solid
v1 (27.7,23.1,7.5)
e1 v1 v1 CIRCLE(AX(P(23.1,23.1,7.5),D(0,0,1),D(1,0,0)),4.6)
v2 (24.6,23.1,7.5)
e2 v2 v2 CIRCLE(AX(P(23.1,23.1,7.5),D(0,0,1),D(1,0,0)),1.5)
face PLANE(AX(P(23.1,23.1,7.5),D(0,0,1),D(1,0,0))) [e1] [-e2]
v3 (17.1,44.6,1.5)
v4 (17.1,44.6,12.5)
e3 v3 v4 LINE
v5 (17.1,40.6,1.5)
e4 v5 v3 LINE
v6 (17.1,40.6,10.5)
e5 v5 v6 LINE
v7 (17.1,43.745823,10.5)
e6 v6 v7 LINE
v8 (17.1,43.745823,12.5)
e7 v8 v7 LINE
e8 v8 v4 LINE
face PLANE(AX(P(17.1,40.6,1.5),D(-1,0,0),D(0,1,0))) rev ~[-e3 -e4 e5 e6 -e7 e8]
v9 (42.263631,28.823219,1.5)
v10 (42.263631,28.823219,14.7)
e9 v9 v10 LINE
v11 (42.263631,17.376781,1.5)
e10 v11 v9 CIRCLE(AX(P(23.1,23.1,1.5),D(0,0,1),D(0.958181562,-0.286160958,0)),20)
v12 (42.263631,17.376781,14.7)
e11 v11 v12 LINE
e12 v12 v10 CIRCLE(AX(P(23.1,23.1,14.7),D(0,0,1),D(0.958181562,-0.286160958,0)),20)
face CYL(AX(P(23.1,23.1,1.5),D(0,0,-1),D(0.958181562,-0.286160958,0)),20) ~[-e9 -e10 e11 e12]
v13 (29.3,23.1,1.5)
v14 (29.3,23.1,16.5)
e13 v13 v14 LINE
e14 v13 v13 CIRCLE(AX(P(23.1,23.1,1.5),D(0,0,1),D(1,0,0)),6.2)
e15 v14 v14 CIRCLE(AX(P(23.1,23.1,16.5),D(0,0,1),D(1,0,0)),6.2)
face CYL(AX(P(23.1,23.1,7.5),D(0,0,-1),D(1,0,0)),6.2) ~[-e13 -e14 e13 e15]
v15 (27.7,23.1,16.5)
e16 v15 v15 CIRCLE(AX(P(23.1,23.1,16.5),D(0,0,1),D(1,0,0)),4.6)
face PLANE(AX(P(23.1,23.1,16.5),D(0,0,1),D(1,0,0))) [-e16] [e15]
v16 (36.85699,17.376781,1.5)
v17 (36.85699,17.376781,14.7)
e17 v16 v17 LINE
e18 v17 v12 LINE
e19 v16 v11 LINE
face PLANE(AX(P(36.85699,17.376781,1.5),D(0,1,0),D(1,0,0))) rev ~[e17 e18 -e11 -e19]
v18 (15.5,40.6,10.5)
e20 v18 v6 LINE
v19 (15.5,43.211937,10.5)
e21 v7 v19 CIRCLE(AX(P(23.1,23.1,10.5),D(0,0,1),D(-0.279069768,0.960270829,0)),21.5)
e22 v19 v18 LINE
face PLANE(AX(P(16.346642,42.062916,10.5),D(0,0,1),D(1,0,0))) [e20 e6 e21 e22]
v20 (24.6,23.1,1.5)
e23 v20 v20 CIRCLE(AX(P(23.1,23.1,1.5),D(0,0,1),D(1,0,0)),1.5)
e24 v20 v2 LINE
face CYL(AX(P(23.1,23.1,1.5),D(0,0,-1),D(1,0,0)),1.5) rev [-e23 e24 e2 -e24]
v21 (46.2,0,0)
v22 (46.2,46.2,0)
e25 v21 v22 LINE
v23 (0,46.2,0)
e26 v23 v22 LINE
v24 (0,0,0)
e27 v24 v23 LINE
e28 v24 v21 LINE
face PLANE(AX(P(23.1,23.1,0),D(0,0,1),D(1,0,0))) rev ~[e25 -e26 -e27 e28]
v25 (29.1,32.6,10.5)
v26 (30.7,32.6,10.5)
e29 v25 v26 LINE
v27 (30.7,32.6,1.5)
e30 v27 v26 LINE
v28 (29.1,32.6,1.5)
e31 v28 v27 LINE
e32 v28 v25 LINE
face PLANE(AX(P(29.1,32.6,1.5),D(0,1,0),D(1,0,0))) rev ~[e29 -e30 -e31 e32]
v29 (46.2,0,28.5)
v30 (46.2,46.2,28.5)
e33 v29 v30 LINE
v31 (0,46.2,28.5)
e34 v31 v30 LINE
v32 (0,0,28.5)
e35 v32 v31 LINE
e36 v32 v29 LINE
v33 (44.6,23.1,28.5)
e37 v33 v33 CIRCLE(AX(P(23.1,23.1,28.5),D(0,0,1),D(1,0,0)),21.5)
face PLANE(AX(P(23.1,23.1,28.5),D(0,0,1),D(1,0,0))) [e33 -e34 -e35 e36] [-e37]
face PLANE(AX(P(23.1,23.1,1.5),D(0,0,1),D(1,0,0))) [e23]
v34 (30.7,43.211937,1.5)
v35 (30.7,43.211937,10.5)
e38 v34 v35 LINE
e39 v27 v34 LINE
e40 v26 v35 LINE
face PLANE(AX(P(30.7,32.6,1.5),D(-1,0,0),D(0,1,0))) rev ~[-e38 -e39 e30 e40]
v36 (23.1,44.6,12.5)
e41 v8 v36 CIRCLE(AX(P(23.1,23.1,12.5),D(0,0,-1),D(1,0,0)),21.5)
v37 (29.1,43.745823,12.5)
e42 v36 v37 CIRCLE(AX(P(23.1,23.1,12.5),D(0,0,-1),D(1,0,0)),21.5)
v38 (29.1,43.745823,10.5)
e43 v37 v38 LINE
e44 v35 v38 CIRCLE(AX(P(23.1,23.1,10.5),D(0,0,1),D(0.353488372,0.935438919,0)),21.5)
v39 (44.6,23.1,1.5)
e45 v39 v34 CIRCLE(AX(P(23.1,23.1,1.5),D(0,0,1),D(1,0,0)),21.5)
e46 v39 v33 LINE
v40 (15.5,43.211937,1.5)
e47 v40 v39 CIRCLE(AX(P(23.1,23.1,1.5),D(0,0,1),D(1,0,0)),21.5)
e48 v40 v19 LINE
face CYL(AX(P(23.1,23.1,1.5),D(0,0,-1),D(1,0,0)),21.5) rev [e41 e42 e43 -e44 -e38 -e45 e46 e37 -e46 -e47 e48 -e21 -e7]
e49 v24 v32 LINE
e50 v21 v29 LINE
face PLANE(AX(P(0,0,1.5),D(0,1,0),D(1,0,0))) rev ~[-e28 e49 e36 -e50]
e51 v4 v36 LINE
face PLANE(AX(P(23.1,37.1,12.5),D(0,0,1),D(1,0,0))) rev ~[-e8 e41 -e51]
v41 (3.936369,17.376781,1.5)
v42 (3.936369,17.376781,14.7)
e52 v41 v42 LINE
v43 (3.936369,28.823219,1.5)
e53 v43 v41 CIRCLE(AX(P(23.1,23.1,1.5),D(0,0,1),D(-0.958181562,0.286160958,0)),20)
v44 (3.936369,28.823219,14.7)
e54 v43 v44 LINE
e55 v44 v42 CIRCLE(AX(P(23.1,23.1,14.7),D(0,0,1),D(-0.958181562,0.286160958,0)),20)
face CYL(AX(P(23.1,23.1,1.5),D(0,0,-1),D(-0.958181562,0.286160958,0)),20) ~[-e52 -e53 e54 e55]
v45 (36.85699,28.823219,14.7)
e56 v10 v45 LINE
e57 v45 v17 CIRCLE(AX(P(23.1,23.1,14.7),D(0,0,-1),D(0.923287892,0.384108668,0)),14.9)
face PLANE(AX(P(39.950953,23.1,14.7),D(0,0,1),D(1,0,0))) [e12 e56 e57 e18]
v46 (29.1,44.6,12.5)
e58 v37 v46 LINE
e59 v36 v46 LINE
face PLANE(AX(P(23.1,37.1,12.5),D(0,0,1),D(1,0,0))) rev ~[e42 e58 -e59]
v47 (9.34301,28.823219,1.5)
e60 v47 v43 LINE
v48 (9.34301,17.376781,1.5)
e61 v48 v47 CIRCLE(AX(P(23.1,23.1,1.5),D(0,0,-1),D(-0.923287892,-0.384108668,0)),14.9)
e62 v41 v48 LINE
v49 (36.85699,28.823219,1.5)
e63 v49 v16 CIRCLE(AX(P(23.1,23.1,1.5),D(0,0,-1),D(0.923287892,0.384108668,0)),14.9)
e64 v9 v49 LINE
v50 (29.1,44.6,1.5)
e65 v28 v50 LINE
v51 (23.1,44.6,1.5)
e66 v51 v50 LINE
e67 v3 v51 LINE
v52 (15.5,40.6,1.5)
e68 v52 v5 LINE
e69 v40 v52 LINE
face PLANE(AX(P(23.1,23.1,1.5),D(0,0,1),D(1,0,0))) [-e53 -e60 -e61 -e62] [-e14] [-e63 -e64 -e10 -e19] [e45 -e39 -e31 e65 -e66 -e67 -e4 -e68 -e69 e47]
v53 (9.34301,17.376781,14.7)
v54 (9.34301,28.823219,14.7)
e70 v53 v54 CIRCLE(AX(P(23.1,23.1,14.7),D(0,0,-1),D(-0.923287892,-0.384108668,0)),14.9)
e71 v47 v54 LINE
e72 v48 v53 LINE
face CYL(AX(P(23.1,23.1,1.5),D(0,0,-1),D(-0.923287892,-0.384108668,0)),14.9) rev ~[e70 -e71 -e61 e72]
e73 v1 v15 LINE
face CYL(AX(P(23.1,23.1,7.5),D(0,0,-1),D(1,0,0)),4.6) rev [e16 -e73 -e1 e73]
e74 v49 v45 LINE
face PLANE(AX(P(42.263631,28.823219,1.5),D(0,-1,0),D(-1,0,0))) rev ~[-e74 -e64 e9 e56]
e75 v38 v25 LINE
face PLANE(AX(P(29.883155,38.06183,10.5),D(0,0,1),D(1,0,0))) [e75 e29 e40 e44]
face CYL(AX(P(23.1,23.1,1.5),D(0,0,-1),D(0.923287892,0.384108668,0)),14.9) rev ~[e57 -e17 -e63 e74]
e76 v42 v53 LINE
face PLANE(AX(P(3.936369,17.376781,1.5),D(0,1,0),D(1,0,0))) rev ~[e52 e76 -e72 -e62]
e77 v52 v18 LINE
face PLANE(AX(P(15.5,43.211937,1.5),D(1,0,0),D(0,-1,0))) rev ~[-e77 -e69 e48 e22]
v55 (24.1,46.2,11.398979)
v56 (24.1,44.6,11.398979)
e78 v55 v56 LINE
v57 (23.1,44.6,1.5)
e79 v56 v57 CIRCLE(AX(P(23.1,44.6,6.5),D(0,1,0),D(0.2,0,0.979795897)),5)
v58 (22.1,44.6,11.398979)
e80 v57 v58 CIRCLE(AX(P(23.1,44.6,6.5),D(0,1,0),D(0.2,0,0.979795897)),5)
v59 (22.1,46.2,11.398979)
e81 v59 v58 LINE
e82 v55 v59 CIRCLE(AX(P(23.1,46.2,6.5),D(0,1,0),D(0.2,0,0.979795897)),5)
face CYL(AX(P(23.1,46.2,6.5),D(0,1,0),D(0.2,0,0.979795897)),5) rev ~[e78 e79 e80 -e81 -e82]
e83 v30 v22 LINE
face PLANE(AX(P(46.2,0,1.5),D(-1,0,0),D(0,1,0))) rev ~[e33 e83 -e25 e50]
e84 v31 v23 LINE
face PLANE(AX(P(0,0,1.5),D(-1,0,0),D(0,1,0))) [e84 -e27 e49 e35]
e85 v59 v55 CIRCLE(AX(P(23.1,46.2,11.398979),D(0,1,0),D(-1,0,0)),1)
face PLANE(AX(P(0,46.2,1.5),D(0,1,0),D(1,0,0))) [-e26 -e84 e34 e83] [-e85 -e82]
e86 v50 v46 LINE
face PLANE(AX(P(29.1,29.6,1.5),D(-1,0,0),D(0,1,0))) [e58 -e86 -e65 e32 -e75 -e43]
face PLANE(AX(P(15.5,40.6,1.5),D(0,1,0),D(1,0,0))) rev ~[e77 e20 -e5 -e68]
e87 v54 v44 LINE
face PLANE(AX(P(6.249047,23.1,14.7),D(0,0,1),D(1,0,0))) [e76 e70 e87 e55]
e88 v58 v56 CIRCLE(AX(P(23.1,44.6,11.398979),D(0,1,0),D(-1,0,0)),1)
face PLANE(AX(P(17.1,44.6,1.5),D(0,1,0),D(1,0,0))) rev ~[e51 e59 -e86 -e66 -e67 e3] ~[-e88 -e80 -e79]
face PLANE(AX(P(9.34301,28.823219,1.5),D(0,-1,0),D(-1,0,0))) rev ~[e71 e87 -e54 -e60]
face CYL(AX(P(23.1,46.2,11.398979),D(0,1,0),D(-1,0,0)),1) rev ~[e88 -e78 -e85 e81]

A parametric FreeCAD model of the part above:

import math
import FreeCAD as App
import Part
import Sketcher
Q = App.Units.Quantity


def add_polygon(sketch, points):
    """Adds a closed chain of lines whose ends are joined by coincident constraints."""
    first, n = sketch.GeometryCount, len(points)
    for a, b in zip(points, points[1:] + points[:1]):
        sketch.addGeometry(Part.LineSegment(App.Vector(*a, 0), App.Vector(*b, 0)), False)
    for i in range(n):
        sketch.addConstraint(Sketcher.Constraint("Coincident", first + i, 2, first + (i + 1) % n, 1))

doc = App.newDocument("Part")
body = doc.addObject("PartDesign::Body", "Body")

sketch1 = body.newObject("Sketcher::SketchObject", "Sketch")
sketch1.AttachmentSupport = (doc.getObject("XY_Plane"), [""])
sketch1.MapMode = "FlatFace"
add_polygon(sketch1, [(0, 46.2), (0, 0), (46.2, 0), (46.2, 46.2)])
sketch1.addConstraint([
    Sketcher.Constraint("Vertical", 0),
    Sketcher.Constraint("Horizontal", 1),
    Sketcher.Constraint("Vertical", 2),
    Sketcher.Constraint("Horizontal", 3),
    Sketcher.Constraint("Coincident", 0, 2, -1, 1),
    Sketcher.Constraint("Equal", 3, 0),
    Sketcher.Constraint("DistanceX", 1, 1, 1, 2, Q("46.2 mm")),
])
pad1 = body.newObject("PartDesign::Pad", "Pad")
pad1.Profile = sketch1
pad1.Length = 1.5

sketch2 = body.newObject("Sketcher::SketchObject", "Sketch001")
sketch2.AttachmentSupport = (doc.getObject("XY_Plane"), [""])
sketch2.MapMode = "FlatFace"
sketch2.AttachmentOffset = App.Placement(App.Vector(0, 0, 1.5), App.Rotation())
add_polygon(sketch2, [(0, 46.2), (0, 0), (46.2, 0), (46.2, 46.2)])
sketch2.addGeometry(Part.Circle(App.Vector(23.1, 23.1, 0), App.Vector(0, 0, 1), 21.5), False)
sketch2.addConstraint([
    Sketcher.Constraint("Vertical", 0),
    Sketcher.Constraint("Horizontal", 1),
    Sketcher.Constraint("Vertical", 2),
    Sketcher.Constraint("Horizontal", 3),
    Sketcher.Constraint("Coincident", 0, 2, -1, 1),
    Sketcher.Constraint("Equal", 3, 0),
    Sketcher.Constraint("Diameter", 4, Q("43 mm")),
    Sketcher.Constraint("DistanceX", 1, 1, 1, 2, Q("46.2 mm")),
    Sketcher.Constraint("DistanceX", -1, 1, 4, 3, Q("23.1 mm")),
    Sketcher.Constraint("DistanceY", -1, 1, 4, 3, Q("23.1 mm")),
])
pad2 = body.newObject("PartDesign::Pad", "Pad001")
pad2.Profile = sketch2
pad2.Length = 27

sketch3 = body.newObject("Sketcher::SketchObject", "Sketch002")
sketch3.AttachmentSupport = (doc.getObject("XY_Plane"), [""])
sketch3.MapMode = "FlatFace"
sketch3.AttachmentOffset = App.Placement(App.Vector(0, 0, 1.5), App.Rotation())
sketch3.addGeometry([
    Part.Circle(App.Vector(23.1, 23.1, 0), App.Vector(0, 0, 1), 6.2),
    Part.Circle(App.Vector(23.1, 23.1, 0), App.Vector(0, 0, 1), 1.5),
], False)
sketch3.addConstraint([
    Sketcher.Constraint("Coincident", 1, 3, 0, 3),
    Sketcher.Constraint("Diameter", 1, Q("3 mm")),
    Sketcher.Constraint("Diameter", 0, Q("12.4 mm")),
    Sketcher.Constraint("DistanceX", -1, 1, 0, 3, Q("23.1 mm")),
    Sketcher.Constraint("DistanceY", -1, 1, 0, 3, Q("23.1 mm")),
])
pad3 = body.newObject("PartDesign::Pad", "Pad002")
pad3.Profile = sketch3
pad3.Length = 6

sketch4 = body.newObject("Sketcher::SketchObject", "Sketch003")
sketch4.AttachmentSupport = (doc.getObject("XY_Plane"), [""])
sketch4.MapMode = "FlatFace"
sketch4.AttachmentOffset = App.Placement(App.Vector(0, 0, 7.5), App.Rotation())
sketch4.addGeometry([
    Part.Circle(App.Vector(23.1, 23.1, 0), App.Vector(0, 0, 1), 6.2),
    Part.Circle(App.Vector(23.1, 23.1, 0), App.Vector(0, 0, 1), 4.6),
], False)
sketch4.addConstraint([
    Sketcher.Constraint("Coincident", 1, 3, 0, 3),
    Sketcher.Constraint("Diameter", 0, Q("12.4 mm")),
    Sketcher.Constraint("Diameter", 1, Q("9.2 mm")),
    Sketcher.Constraint("DistanceX", -1, 1, 0, 3, Q("23.1 mm")),
    Sketcher.Constraint("DistanceY", -1, 1, 0, 3, Q("23.1 mm")),
])
pad4 = body.newObject("PartDesign::Pad", "Pad003")
pad4.Profile = sketch4
pad4.Length = 9

sketch5 = body.newObject("Sketcher::SketchObject", "Sketch004")
sketch5.AttachmentSupport = (doc.getObject("XY_Plane"), [""])
sketch5.MapMode = "FlatFace"
sketch5.AttachmentOffset = App.Placement(App.Vector(0, 0, 1.5), App.Rotation())
sketch5.addGeometry([
    Part.ArcOfCircle(Part.Circle(App.Vector(23.1, 23.1, 0), App.Vector(0, 0, 1), 20), math.radians(163.371743), math.radians(196.628257)),
    Part.LineSegment(App.Vector(3.936369, 17.376781, 0), App.Vector(9.34301, 17.376781, 0)),
    Part.ArcOfCircle(Part.Circle(App.Vector(23.1, 23.1, 0), App.Vector(0, 0, 1), 14.9), math.radians(157.411584), math.radians(202.588416)),
    Part.LineSegment(App.Vector(9.34301, 28.823219, 0), App.Vector(3.936369, 28.823219, 0)),
    Part.ArcOfCircle(Part.Circle(App.Vector(23.1, 23.1, 0), App.Vector(0, 0, 1), 20), math.radians(-16.628257), math.radians(16.628257)),
    Part.LineSegment(App.Vector(42.263631, 28.823219, 0), App.Vector(36.85699, 28.823219, 0)),
    Part.ArcOfCircle(Part.Circle(App.Vector(23.1, 23.1, 0), App.Vector(0, 0, 1), 14.9), math.radians(-22.588416), math.radians(22.588416)),
    Part.LineSegment(App.Vector(36.85699, 17.376781, 0), App.Vector(42.263631, 17.376781, 0)),
], False)
sketch5.addConstraint([
    Sketcher.Constraint("Coincident", 0, 2, 1, 1),
    Sketcher.Constraint("Coincident", 1, 2, 2, 2),
    Sketcher.Constraint("Coincident", 2, 1, 3, 1),
    Sketcher.Constraint("Coincident", 3, 2, 0, 1),
    Sketcher.Constraint("Coincident", 4, 2, 5, 1),
    Sketcher.Constraint("Coincident", 5, 2, 6, 2),
    Sketcher.Constraint("Coincident", 6, 1, 7, 1),
    Sketcher.Constraint("Coincident", 7, 2, 4, 1),
    Sketcher.Constraint("Horizontal", 1),
    Sketcher.Constraint("Horizontal", 3),
    Sketcher.Constraint("Horizontal", 5),
    Sketcher.Constraint("Horizontal", 7),
    Sketcher.Constraint("Coincident", 2, 3, 0, 3),
    Sketcher.Constraint("Coincident", 4, 3, 0, 3),
    Sketcher.Constraint("Coincident", 6, 3, 0, 3),
    Sketcher.Constraint("Equal", 0, 4),
    Sketcher.Constraint("Equal", 2, 6),
    Sketcher.Constraint("Horizontal", 3, 2, 4, 2),
    Sketcher.Constraint("Horizontal", 1, 2, 6, 1),
    Sketcher.Constraint("Vertical", 1, 2, 2, 1),
    Sketcher.Constraint("Radius", 0, Q("20 mm")),
    Sketcher.Constraint("Radius", 2, Q("14.9 mm")),
    Sketcher.Constraint("DistanceX", -1, 1, 0, 3, Q("23.1 mm")),
    Sketcher.Constraint("DistanceY", -1, 1, 0, 3, Q("23.1 mm")),
    Sketcher.Constraint("DistanceX", 1, 1, 1, 2, Q("5.406642 mm")),
])
pad5 = body.newObject("PartDesign::Pad", "Pad004")
pad5.Profile = sketch5
pad5.Length = 13.2

sketch6 = body.newObject("Sketcher::SketchObject", "Sketch005")
sketch6.AttachmentSupport = (doc.getObject("XZ_Plane"), [""])
sketch6.MapMode = "FlatFace"
sketch6.AttachmentOffset = App.Placement(App.Vector(0, 0, -46.2), App.Rotation())
sketch6.addGeometry([
    Part.ArcOfCircle(Part.Circle(App.Vector(23.1, 6.5, 0), App.Vector(0, 0, 1), 5), math.radians(101.536959), math.radians(438.463041)),
    Part.ArcOfCircle(Part.Circle(App.Vector(23.1, 11.398979, 0), App.Vector(0, 0, 1), 1), math.radians(0), math.radians(180)),
], False)
sketch6.addConstraint([
    Sketcher.Constraint("Coincident", 0, 1, 1, 2),
    Sketcher.Constraint("Coincident", 1, 1, 0, 2),
    Sketcher.Constraint("Horizontal", 1, 3, 0, 1),
    Sketcher.Constraint("Horizontal", 0, 1, 1, 1),
    Sketcher.Constraint("Radius", 0, Q("5 mm")),
    Sketcher.Constraint("Radius", 1, Q("1 mm")),
    Sketcher.Constraint("DistanceX", -1, 1, 0, 3, Q("23.1 mm")),
    Sketcher.Constraint("DistanceY", -1, 1, 0, 3, Q("6.5 mm")),
])
pocket1 = body.newObject("PartDesign::Pocket", "Pocket")
pocket1.Profile = sketch6
pocket1.Length = 3.189476
pocket1.Reversed = True

sketch7 = body.newObject("Sketcher::SketchObject", "Sketch006")
sketch7.AttachmentSupport = (doc.getObject("XY_Plane"), [""])
sketch7.MapMode = "FlatFace"
sketch7.AttachmentOffset = App.Placement(App.Vector(0, 0, 1.5), App.Rotation())
add_polygon(sketch7, [(17.1, 44.6), (17.1, 29.6), (29.1, 29.6), (29.1, 44.6)])
sketch7.addConstraint([
    Sketcher.Constraint("Vertical", 0),
    Sketcher.Constraint("Horizontal", 1),
    Sketcher.Constraint("Vertical", 2),
    Sketcher.Constraint("Horizontal", 3),
    Sketcher.Constraint("DistanceX", 1, 1, 1, 2, Q("12 mm")),
    Sketcher.Constraint("DistanceY", 0, 2, 0, 1, Q("15 mm")),
    Sketcher.Constraint("DistanceX", -1, 1, 0, 2, Q("17.1 mm")),
    Sketcher.Constraint("DistanceY", -1, 1, 0, 2, Q("29.6 mm")),
])
pocket2 = body.newObject("PartDesign::Pocket", "Pocket001")
pocket2.Profile = sketch7
pocket2.Length = 11
pocket2.Reversed = True

sketch8 = body.newObject("Sketcher::SketchObject", "Sketch007")
sketch8.AttachmentSupport = (doc.getObject("XY_Plane"), [""])
sketch8.MapMode = "FlatFace"
sketch8.AttachmentOffset = App.Placement(App.Vector(0, 0, 1.5), App.Rotation())
sketch8.addGeometry([
    Part.LineSegment(App.Vector(17.1, 40.6, 0), App.Vector(17.1, 43.745823, 0)),
    Part.ArcOfCircle(Part.Circle(App.Vector(23.1, 23.1, 0), App.Vector(0, 0, 1), 21.5), math.radians(106.204693), math.radians(110.700829)),
    Part.LineSegment(App.Vector(15.5, 43.211937, 0), App.Vector(15.5, 40.6, 0)),
    Part.LineSegment(App.Vector(15.5, 40.6, 0), App.Vector(17.1, 40.6, 0)),
    Part.ArcOfCircle(Part.Circle(App.Vector(23.1, 23.1, 0), App.Vector(0, 0, 1), 21.5), math.radians(69.299171), math.radians(73.795307)),
    Part.LineSegment(App.Vector(29.1, 43.745823, 0), App.Vector(29.1, 32.6, 0)),
    Part.LineSegment(App.Vector(29.1, 32.6, 0), App.Vector(30.7, 32.6, 0)),
    Part.LineSegment(App.Vector(30.7, 32.6, 0), App.Vector(30.7, 43.211937, 0)),
], False)
sketch8.addConstraint([
    Sketcher.Constraint("Coincident", 0, 2, 1, 1),
    Sketcher.Constraint("Coincident", 1, 2, 2, 1),
    Sketcher.Constraint("Coincident", 2, 2, 3, 1),
    Sketcher.Constraint("Coincident", 3, 2, 0, 1),
    Sketcher.Constraint("Coincident", 4, 2, 5, 1),
    Sketcher.Constraint("Coincident", 5, 2, 6, 1),
    Sketcher.Constraint("Coincident", 6, 2, 7, 1),
    Sketcher.Constraint("Coincident", 7, 2, 4, 1),
    Sketcher.Constraint("Vertical", 0),
    Sketcher.Constraint("Vertical", 2),
    Sketcher.Constraint("Horizontal", 3),
    Sketcher.Constraint("Vertical", 5),
    Sketcher.Constraint("Horizontal", 6),
    Sketcher.Constraint("Vertical", 7),
    Sketcher.Constraint("Coincident", 4, 3, 1, 3),
    Sketcher.Constraint("Equal", 1, 4),
    Sketcher.Constraint("Horizontal", 0, 2, 4, 2),
    Sketcher.Constraint("Horizontal", 1, 2, 7, 2),
    Sketcher.Constraint("Radius", 1, Q("21.5 mm")),
    Sketcher.Constraint("DistanceX", 3, 1, 3, 2, Q("1.6 mm")),
    Sketcher.Constraint("DistanceX", 0, 2, 4, 3, Q("6 mm")),
    Sketcher.Constraint("DistanceY", 5, 2, 3, 2, Q("8 mm")),
    Sketcher.Constraint("DistanceX", -1, 1, 1, 3, Q("23.1 mm")),
    Sketcher.Constraint("DistanceY", -1, 1, 1, 3, Q("23.1 mm")),
    Sketcher.Constraint("DistanceY", -1, 1, 2, 2, Q("40.6 mm")),
])
pad6 = body.newObject("PartDesign::Pad", "Pad005")
pad6.Profile = sketch8
pad6.Length = 9

doc.recompute()
